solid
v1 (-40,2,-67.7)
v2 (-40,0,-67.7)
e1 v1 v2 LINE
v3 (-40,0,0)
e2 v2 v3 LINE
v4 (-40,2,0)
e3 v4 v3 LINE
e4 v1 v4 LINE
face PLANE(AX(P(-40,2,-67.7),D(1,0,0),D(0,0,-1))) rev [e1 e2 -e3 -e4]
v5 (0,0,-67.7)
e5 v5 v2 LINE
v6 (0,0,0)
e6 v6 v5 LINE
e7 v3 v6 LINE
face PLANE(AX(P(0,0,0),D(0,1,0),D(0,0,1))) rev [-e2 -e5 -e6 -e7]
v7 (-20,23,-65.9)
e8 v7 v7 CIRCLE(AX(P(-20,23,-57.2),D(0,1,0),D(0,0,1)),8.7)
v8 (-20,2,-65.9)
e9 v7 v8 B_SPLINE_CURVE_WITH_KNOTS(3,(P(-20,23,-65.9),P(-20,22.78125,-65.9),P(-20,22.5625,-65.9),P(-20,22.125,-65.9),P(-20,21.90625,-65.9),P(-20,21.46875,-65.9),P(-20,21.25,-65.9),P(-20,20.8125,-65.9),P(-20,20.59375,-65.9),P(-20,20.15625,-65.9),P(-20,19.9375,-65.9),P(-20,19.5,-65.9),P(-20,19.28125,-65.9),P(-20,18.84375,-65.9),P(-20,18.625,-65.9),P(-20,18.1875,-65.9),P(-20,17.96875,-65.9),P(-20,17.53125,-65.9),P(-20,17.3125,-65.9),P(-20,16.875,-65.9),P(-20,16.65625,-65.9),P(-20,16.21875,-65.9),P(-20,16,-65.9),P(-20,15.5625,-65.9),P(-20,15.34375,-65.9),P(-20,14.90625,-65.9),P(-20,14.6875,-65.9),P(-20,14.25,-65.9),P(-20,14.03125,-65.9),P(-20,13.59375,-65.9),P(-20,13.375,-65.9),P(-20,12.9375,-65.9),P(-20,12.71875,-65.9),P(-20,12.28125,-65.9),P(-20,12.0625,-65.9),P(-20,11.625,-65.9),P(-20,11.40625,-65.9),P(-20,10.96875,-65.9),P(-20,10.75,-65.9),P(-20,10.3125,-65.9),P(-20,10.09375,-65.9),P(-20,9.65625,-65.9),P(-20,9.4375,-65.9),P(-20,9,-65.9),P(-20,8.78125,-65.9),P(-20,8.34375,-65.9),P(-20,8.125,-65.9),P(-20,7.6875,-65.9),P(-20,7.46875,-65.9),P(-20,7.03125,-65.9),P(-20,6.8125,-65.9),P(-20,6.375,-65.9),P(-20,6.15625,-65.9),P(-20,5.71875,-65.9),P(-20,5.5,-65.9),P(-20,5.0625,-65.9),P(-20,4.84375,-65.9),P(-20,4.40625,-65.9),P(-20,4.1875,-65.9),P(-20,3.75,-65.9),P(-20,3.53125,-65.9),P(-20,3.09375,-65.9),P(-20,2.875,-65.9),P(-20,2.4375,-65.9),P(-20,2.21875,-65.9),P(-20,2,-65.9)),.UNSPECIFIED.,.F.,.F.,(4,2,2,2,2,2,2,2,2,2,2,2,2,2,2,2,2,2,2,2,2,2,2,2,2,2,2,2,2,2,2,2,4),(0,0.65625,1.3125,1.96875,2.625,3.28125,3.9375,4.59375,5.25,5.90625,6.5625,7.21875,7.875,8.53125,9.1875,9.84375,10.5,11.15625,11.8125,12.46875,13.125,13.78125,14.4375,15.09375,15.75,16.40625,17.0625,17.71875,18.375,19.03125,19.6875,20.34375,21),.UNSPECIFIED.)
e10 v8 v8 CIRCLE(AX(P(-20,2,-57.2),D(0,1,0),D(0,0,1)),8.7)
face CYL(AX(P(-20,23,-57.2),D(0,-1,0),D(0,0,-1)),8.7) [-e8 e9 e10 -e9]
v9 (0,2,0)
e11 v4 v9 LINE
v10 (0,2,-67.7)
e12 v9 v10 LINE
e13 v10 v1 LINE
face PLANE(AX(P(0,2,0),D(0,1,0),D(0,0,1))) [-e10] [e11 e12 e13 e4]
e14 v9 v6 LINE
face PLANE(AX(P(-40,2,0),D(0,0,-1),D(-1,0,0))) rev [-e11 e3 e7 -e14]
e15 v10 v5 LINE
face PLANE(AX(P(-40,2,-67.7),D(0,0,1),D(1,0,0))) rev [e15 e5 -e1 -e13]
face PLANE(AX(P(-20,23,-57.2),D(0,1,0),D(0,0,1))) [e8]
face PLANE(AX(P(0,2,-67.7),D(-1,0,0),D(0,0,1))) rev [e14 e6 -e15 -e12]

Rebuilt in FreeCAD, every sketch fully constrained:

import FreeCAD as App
import Part
import Sketcher
Q = App.Units.Quantity


def add_polygon(sketch, points):
    """Adds a closed chain of lines whose ends are joined by coincident constraints."""
    first, n = sketch.GeometryCount, len(points)
    for a, b in zip(points, points[1:] + points[:1]):
        sketch.addGeometry(Part.LineSegment(App.Vector(*a, 0), App.Vector(*b, 0)), False)
    for i in range(n):
        sketch.addConstraint(Sketcher.Constraint("Coincident", first + i, 2, first + (i + 1) % n, 1))

doc = App.newDocument("Part")
body = doc.addObject("PartDesign::Body", "Body")

sketch1 = body.newObject("Sketcher::SketchObject", "Sketch")
sketch1.AttachmentSupport = (doc.getObject("XZ_Plane"), [""])
sketch1.MapMode = "FlatFace"
add_polygon(sketch1, [(-40, -67.7), (-40, 0), (0, 0), (0, -67.7)])
sketch1.addConstraint(Sketcher.Constraint("Vertical", 0))
sketch1.addConstraint(Sketcher.Constraint("Horizontal", 1))
sketch1.addConstraint(Sketcher.Constraint("Vertical", 2))
sketch1.addConstraint(Sketcher.Constraint("Horizontal", 3))
sketch1.addConstraint(Sketcher.Constraint("Coincident", 1, 2, -1, 1))
sketch1.addConstraint(Sketcher.Constraint("DistanceX", 1, 1, 1, 2, Q("40 mm")))
sketch1.addConstraint(Sketcher.Constraint("DistanceY", 0, 1, 0, 2, Q("67.7 mm")))
pad1 = body.newObject("PartDesign::Pad", "Pad")
pad1.Profile = sketch1
pad1.Length = 2
pad1.Reversed = True

sketch2 = body.newObject("Sketcher::SketchObject", "Sketch001")
sketch2.AttachmentSupport = (doc.getObject("XZ_Plane"), [""])
sketch2.MapMode = "FlatFace"
sketch2.AttachmentOffset = App.Placement(App.Vector(0, 0, -2), App.Rotation())
sketch2.addGeometry(Part.Circle(App.Vector(-20, -57.2, 0), App.Vector(0, 0, 1), 8.7), False)
sketch2.addConstraint(Sketcher.Constraint("Diameter", 0, Q("17.4 mm")))
sketch2.addConstraint(Sketcher.Constraint("DistanceX", 0, 3, -1, 1, Q("20 mm")))
sketch2.addConstraint(Sketcher.Constraint("DistanceY", 0, 3, -1, 1, Q("57.2 mm")))
pad2 = body.newObject("PartDesign::Pad", "Pad001")
pad2.Profile = sketch2
pad2.Length = 21
pad2.Reversed = True

doc.recompute()
